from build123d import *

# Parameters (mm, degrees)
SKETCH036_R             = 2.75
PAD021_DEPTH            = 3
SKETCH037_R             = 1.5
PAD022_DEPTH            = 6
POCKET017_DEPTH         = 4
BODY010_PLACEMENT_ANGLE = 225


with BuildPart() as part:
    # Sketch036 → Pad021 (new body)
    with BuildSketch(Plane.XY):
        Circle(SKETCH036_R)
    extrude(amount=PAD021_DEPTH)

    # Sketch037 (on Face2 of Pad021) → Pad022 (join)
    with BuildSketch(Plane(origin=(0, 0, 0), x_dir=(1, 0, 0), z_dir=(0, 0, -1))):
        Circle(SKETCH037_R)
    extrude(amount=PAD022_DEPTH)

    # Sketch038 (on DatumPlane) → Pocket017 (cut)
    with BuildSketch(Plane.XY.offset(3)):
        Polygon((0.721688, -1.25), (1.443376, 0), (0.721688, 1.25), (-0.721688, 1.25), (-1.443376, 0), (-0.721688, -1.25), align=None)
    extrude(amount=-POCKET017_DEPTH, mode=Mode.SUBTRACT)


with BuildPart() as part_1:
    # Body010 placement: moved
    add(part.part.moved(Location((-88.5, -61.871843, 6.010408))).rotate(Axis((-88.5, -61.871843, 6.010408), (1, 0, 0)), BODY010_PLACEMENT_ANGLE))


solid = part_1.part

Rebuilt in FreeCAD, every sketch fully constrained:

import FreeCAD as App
import Part
import Sketcher
from FreeCAD import Vector
Q = App.Units.Quantity

doc = App.newDocument("Part")
body = doc.addObject("PartDesign::Body", "Body")

# Sketch on XY plane
sketch1 = body.newObject("Sketcher::SketchObject", "Sketch")
sketch1.AttachmentSupport = (doc.getObject("XY_Plane"), [""])
sketch1.MapMode = "FlatFace"
sketch1.addGeometry(Part.Circle(Vector(0, 0, 0), Vector(0, 0, 1), 2.75), False)
sketch1.addConstraint(Sketcher.Constraint("Coincident", 0, 3, -1, 1))
sketch1.addConstraint(Sketcher.Constraint("Diameter", 0, 5.5))
pad1 = body.newObject("PartDesign::Pad", "Pad")
pad1.Profile = sketch1
pad1.Length = 3

# Sketch on XY plane
sketch2 = body.newObject("Sketcher::SketchObject", "Sketch001")
sketch2.AttachmentSupport = (doc.getObject("XY_Plane"), [""])
sketch2.MapMode = "FlatFace"
sketch2.addGeometry(Part.Circle(Vector(0, 0, 0), Vector(0, 0, 1), 1.5), False)
sketch2.addConstraint(Sketcher.Constraint("Coincident", 0, 3, -1, 1))
sketch2.addConstraint(Sketcher.Constraint("Diameter", 0, 3.0))
pad2 = body.newObject("PartDesign::Pad", "Pad001")
pad2.Profile = sketch2
pad2.Length = 6
pad2.Reversed = True

# Sketch on XY plane
sketch3 = body.newObject("Sketcher::SketchObject", "Sketch002")
sketch3.AttachmentSupport = (doc.getObject("XY_Plane"), [""])
sketch3.MapMode = "FlatFace"
sketch3.AttachmentOffset = App.Placement(Vector(0, 0, 3), App.Rotation())
sketch3.addGeometry(Part.LineSegment(Vector(0.721688, -1.25, 0), Vector(1.443376, 0, 0)), False)
sketch3.addGeometry(Part.LineSegment(Vector(1.443376, 0, 0), Vector(0.721688, 1.25, 0)), False)
sketch3.addGeometry(Part.LineSegment(Vector(0.721688, 1.25, 0), Vector(-0.721688, 1.25, 0)), False)
sketch3.addGeometry(Part.LineSegment(Vector(-0.721688, 1.25, 0), Vector(-1.443376, 0, 0)), False)
sketch3.addGeometry(Part.LineSegment(Vector(-1.443376, 0, 0), Vector(-0.721688, -1.25, 0)), False)
sketch3.addGeometry(Part.LineSegment(Vector(-0.721688, -1.25, 0), Vector(0.721688, -1.25, 0)), False)
sketch3.addConstraint(Sketcher.Constraint("Coincident", 0, 2, 1, 1))
sketch3.addConstraint(Sketcher.Constraint("Coincident", 1, 2, 2, 1))
sketch3.addConstraint(Sketcher.Constraint("Coincident", 2, 2, 3, 1))
sketch3.addConstraint(Sketcher.Constraint("Coincident", 3, 2, 4, 1))
sketch3.addConstraint(Sketcher.Constraint("Coincident", 4, 2, 5, 1))
sketch3.addConstraint(Sketcher.Constraint("Coincident", 5, 2, 0, 1))
sketch3.addConstraint(Sketcher.Constraint("Horizontal", 2))
sketch3.addConstraint(Sketcher.Constraint("Horizontal", 5))
sketch3.addConstraint(Sketcher.Constraint("Symmetric", 0, 2, 3, 2, -1, 1))
sketch3.addConstraint(Sketcher.Constraint("Symmetric", 1, 2, 4, 2, -1, 1))
sketch3.addConstraint(Sketcher.Constraint("PointOnObject", 0, 2, -1))
sketch3.addConstraint(Sketcher.Constraint("Parallel", 0, 3))
sketch3.addConstraint(Sketcher.Constraint("Vertical", 2, 2, 4, 2))
sketch3.addConstraint(Sketcher.Constraint("Angle", 0, Q("59.999994 deg")))
sketch3.addConstraint(Sketcher.Constraint("DistanceY", 4, 2, 2, 2, 2.5))
sketch3.addConstraint(Sketcher.Constraint("DistanceX", 2, 2, 2, 1, 1.443376))
pocket1 = body.newObject("PartDesign::Pocket", "Pocket")
pocket1.Profile = sketch3
pocket1.Length = 4
body2 = doc.addObject("PartDesign::Body", "Body001")
doc.recompute()

body.Placement = App.Placement(Vector(-88.5, -61.871843, 6.010408), App.Rotation(Vector(1, 0, 0), 225))
boolean = body2.newObject("PartDesign::Boolean", "Boolean")
boolean.Type = "Fuse"
boolean.addObjects([body])

doc.recompute()
